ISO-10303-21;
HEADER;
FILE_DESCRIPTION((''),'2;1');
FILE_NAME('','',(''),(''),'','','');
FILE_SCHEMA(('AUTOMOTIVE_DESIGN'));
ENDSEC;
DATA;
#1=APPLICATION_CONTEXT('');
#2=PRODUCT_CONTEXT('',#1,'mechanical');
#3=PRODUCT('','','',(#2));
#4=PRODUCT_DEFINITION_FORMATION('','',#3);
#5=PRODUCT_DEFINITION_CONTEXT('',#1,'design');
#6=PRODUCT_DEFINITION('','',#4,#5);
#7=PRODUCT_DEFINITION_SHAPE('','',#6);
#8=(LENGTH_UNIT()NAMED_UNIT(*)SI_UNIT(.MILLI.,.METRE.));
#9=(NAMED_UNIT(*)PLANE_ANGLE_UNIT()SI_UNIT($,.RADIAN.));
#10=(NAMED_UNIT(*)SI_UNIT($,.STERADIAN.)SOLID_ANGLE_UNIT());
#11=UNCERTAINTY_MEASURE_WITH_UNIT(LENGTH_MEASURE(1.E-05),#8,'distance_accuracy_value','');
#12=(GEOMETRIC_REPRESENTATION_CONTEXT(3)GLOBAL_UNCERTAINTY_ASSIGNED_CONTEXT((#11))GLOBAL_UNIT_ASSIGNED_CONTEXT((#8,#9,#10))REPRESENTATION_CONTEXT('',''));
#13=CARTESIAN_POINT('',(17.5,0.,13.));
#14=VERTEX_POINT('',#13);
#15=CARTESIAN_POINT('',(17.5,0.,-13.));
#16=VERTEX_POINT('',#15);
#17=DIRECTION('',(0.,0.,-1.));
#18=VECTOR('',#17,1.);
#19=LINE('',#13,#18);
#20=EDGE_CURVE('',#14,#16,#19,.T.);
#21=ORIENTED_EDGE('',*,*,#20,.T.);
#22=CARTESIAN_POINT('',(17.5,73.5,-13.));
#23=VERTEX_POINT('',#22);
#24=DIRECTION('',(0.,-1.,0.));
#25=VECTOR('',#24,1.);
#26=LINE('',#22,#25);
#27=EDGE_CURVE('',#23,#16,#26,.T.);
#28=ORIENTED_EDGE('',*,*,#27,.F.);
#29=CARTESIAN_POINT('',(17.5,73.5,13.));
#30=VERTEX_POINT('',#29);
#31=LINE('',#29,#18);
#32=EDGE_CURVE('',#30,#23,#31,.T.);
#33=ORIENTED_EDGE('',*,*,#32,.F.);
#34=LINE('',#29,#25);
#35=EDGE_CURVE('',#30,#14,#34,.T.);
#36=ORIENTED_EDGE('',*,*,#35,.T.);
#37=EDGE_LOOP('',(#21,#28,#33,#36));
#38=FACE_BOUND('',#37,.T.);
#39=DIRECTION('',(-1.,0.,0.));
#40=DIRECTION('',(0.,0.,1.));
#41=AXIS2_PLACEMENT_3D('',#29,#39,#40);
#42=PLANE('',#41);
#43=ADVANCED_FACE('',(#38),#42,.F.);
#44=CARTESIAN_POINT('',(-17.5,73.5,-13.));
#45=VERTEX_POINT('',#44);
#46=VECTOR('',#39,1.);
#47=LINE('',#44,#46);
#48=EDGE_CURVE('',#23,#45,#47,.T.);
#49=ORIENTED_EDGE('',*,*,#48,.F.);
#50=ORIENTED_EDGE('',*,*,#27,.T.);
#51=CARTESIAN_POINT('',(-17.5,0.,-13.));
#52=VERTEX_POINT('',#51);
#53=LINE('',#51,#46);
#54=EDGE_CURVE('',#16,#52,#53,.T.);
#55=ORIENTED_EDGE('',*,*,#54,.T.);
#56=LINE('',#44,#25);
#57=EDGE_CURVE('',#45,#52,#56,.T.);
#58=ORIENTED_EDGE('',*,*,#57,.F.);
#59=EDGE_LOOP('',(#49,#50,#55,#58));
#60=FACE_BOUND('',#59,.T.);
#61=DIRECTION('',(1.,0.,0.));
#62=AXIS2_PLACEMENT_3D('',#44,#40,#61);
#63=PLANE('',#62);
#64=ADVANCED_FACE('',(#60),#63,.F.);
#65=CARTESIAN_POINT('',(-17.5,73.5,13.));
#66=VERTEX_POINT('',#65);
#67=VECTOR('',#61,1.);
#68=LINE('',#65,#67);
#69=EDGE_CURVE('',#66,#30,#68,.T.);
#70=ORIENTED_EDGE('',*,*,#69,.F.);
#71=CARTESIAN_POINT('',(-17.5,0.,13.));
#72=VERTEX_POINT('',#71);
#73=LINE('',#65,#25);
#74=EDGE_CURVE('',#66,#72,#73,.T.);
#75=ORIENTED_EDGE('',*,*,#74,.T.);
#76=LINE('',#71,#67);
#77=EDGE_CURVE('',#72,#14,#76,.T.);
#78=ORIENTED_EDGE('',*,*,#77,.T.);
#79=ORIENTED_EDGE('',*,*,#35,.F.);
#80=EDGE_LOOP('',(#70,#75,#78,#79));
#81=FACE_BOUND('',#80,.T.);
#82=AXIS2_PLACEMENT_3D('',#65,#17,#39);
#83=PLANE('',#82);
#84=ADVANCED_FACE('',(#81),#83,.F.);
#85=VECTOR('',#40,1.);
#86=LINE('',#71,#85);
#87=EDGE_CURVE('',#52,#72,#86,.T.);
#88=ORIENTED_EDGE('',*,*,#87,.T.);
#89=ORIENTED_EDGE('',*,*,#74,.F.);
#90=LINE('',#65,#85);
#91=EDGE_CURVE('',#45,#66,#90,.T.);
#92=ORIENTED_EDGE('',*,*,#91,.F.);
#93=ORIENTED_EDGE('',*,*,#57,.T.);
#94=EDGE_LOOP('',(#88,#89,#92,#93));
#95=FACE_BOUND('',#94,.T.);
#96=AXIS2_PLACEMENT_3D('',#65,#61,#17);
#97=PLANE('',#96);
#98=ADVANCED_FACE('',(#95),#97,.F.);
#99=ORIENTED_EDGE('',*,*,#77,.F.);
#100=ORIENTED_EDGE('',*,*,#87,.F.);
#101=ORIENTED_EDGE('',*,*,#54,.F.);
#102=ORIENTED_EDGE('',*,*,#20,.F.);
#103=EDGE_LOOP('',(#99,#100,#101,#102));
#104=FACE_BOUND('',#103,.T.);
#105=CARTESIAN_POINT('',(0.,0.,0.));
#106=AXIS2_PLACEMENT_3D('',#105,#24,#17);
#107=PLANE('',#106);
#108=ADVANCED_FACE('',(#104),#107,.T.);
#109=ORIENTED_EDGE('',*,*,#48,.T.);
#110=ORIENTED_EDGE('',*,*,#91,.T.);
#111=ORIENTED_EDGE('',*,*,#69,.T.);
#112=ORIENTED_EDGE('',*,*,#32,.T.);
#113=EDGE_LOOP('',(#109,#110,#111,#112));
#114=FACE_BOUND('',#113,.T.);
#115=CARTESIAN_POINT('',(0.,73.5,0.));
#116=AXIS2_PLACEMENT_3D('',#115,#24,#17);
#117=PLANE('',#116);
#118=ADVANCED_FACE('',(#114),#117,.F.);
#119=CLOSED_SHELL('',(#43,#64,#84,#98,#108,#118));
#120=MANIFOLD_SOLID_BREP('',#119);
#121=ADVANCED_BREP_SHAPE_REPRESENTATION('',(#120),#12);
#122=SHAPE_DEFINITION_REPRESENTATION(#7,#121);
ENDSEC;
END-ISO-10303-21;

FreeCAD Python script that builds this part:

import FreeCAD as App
import Part
import Sketcher
from FreeCAD import Vector
Q = App.Units.Quantity


def add_polygon(sketch, points):
    """Adds a closed chain of lines whose ends are joined by coincident constraints."""
    first, n = sketch.GeometryCount, len(points)
    for a, b in zip(points, points[1:] + points[:1]):
        sketch.addGeometry(Part.LineSegment(App.Vector(*a, 0), App.Vector(*b, 0)), False)
    for i in range(n):
        sketch.addConstraint(Sketcher.Constraint("Coincident", first + i, 2, first + (i + 1) % n, 1))

doc = App.newDocument("Part")
body = doc.addObject("PartDesign::Body", "Body")

# Sketch on XZ plane
sketch1 = body.newObject("Sketcher::SketchObject", "Sketch")
sketch1.AttachmentSupport = (doc.getObject("XZ_Plane"), [""])
sketch1.MapMode = "FlatFace"
add_polygon(sketch1, [(-18, -13), (-18, 13), (18, 13), (18, -13)])  # lines 0-3
sketch1.addConstraint([
    Sketcher.Constraint("Vertical", 0),
    Sketcher.Constraint("Horizontal", 1),
    Sketcher.Constraint("Vertical", 2),
    Sketcher.Constraint("Horizontal", 3),
    Sketcher.Constraint("Symmetric", 0, 2, 2, 2, -1, 1),
    Sketcher.Constraint("DistanceX", 1, 1, 1, 2, Q("35 mm")),
    Sketcher.Constraint("DistanceY", 0, 1, 0, 2, Q("26 mm")),
])
pad1 = body.newObject("PartDesign::Pad", "Pad")
pad1.Profile = sketch1
pad1.Length = 73.5
pad1.Reversed = True

doc.recompute()
